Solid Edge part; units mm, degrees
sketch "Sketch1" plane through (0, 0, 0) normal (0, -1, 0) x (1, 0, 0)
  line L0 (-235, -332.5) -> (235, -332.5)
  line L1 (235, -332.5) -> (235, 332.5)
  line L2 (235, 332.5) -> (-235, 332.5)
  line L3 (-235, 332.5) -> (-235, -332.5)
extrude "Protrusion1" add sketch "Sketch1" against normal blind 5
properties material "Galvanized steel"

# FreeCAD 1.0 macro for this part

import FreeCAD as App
import Part
import Sketcher

V = App.Vector
Q = App.Units.Quantity

doc = App.newDocument("Part")
body = doc.addObject("PartDesign::Body", "Body")

# Sketch on XZ plane
sketch1 = doc.addObject("Sketcher::SketchObject", "Sketch")
body.addObject(sketch1)
sketch1.AttachmentSupport = (doc.XZ_Plane, [""])
sketch1.MapMode = "FlatFace"
sketch1.addGeometry(Part.LineSegment(V(-235, 332, 0), V(-235, -332, 0)), False)
sketch1.addGeometry(Part.LineSegment(V(-235, -332, 0), V(235, -332, 0)), False)
sketch1.addGeometry(Part.LineSegment(V(235, -332, 0), V(235, 332, 0)), False)
sketch1.addGeometry(Part.LineSegment(V(235, 332, 0), V(-235, 332, 0)), False)
sketch1.addConstraint(Sketcher.Constraint("Coincident", 0, 2, 1, 1))
sketch1.addConstraint(Sketcher.Constraint("Coincident", 1, 2, 2, 1))
sketch1.addConstraint(Sketcher.Constraint("Coincident", 2, 2, 3, 1))
sketch1.addConstraint(Sketcher.Constraint("Coincident", 3, 2, 0, 1))
sketch1.addConstraint(Sketcher.Constraint("Vertical", 0))
sketch1.addConstraint(Sketcher.Constraint("Horizontal", 1))
sketch1.addConstraint(Sketcher.Constraint("Vertical", 2))
sketch1.addConstraint(Sketcher.Constraint("Horizontal", 3))
sketch1.addConstraint(Sketcher.Constraint("Symmetric", 0, 2, 2, 2, -1, 1))
sketch1.addConstraint(Sketcher.Constraint("DistanceX", 1, 1, 1, 2, Q("470 mm")))
sketch1.addConstraint(Sketcher.Constraint("DistanceY", 0, 2, 0, 1, Q("665 mm")))
pad1 = doc.addObject("PartDesign::Pad", "Pad")
body.addObject(pad1)
pad1.Profile = sketch1
pad1.Length = 5
pad1.Reversed = True

doc.recompute()
